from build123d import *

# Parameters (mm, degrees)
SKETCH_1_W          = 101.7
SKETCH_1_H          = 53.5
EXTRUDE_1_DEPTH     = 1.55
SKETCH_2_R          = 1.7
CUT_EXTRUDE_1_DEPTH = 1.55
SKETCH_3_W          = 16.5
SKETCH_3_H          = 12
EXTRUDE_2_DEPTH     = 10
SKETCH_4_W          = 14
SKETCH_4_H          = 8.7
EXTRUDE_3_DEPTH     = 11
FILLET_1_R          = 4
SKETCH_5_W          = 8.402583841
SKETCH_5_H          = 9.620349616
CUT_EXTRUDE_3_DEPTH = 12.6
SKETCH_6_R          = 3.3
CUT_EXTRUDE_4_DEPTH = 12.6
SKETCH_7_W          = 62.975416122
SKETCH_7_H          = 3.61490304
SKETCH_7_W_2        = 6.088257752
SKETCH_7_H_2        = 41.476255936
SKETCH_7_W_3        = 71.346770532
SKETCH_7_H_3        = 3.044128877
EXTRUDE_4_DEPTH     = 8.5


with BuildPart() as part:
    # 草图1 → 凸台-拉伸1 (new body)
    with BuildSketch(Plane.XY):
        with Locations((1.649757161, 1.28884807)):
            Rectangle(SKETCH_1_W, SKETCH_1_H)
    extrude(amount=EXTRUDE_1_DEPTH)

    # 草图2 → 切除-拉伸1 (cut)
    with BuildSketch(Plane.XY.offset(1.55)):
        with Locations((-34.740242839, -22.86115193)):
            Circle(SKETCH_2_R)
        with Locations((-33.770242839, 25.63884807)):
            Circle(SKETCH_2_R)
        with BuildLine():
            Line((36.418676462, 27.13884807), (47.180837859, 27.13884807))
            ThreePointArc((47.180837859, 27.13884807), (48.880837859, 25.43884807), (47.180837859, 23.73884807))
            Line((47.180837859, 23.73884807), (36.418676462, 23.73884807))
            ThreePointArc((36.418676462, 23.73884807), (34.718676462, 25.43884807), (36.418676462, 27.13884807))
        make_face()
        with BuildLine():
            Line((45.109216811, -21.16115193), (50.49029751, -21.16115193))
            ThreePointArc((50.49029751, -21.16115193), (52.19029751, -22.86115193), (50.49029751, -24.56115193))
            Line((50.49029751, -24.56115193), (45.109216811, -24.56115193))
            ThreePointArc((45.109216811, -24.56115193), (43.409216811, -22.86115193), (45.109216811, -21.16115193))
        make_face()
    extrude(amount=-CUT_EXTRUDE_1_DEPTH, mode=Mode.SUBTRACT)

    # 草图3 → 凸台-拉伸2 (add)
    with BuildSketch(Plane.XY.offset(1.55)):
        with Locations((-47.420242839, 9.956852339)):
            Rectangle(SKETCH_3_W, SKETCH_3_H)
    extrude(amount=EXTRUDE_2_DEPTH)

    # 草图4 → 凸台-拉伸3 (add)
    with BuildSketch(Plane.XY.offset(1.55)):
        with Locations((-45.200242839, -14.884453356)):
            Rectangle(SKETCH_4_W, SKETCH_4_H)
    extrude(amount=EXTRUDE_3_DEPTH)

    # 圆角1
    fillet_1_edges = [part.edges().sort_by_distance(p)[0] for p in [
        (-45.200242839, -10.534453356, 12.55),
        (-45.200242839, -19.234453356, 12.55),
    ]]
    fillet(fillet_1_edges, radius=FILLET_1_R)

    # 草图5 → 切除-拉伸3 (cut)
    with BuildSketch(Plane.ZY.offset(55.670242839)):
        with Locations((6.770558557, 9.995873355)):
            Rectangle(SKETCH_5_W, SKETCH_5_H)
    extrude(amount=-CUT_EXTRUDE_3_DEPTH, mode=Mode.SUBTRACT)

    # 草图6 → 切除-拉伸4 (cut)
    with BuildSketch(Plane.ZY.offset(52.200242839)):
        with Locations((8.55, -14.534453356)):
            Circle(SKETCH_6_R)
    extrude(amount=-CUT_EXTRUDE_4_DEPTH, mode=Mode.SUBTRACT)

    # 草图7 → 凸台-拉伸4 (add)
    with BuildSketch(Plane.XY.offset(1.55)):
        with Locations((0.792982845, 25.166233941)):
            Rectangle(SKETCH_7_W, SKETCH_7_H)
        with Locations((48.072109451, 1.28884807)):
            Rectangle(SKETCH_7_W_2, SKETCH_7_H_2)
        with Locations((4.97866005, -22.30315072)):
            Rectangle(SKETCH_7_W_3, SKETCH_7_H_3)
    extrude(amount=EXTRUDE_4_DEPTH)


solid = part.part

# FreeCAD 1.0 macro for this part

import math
import FreeCAD as App
import Part
import Sketcher

V = App.Vector


def edges_at(feature, points):
    """Names of the edges that pass closest to the given points."""
    edges = feature.Shape.Edges
    near = lambda p: min(range(len(edges)), key=lambda i: edges[i].distToShape(Part.Vertex(*p))[0])
    return sorted({f"Edge{near(p) + 1}" for p in points})

doc = App.newDocument("Part")
body = doc.addObject("PartDesign::Body", "Body")

sketch1 = doc.addObject("Sketcher::SketchObject", "Sketch")
body.addObject(sketch1)
sketch1.AttachmentSupport = (doc.XY_Plane, [""])
sketch1.MapMode = "FlatFace"
sketch1.addGeometry([
    Part.LineSegment(V(-49.200243, 28.038848, 0), V(-49.200243, -25.461152, 0)),
    Part.LineSegment(V(-49.200243, -25.461152, 0), V(52.499757, -25.461152, 0)),
    Part.LineSegment(V(52.499757, -25.461152, 0), V(52.499757, 28.038848, 0)),
    Part.LineSegment(V(52.499757, 28.038848, 0), V(-49.200243, 28.038848, 0)),
], False)
sketch1.addConstraint([
    Sketcher.Constraint("Coincident", 0, 2, 1, 1),
    Sketcher.Constraint("Coincident", 1, 2, 2, 1),
    Sketcher.Constraint("Coincident", 2, 2, 3, 1),
    Sketcher.Constraint("Coincident", 3, 2, 0, 1),
    Sketcher.Constraint("Vertical", 0),
    Sketcher.Constraint("Horizontal", 1),
    Sketcher.Constraint("Vertical", 2),
    Sketcher.Constraint("Horizontal", 3),
    Sketcher.Constraint("DistanceX", 1, 1, 1, 2, 101.7),
    Sketcher.Constraint("DistanceY", 0, 2, 0, 1, 53.5),
    Sketcher.Constraint("DistanceY", 0, 2, -1, 1, 25.461152),
    Sketcher.Constraint("DistanceX", 0, 2, -1, 1, 49.200243),
])
pad1 = doc.addObject("PartDesign::Pad", "Pad")
body.addObject(pad1)
pad1.Profile = sketch1
pad1.Length = 1.55

sketch2 = doc.addObject("Sketcher::SketchObject", "Sketch001")
body.addObject(sketch2)
sketch2.AttachmentSupport = (doc.XY_Plane, [""])
sketch2.MapMode = "FlatFace"
sketch2.AttachmentOffset = App.Placement(V(0, 0, 1.55), App.Rotation())
sketch2.addGeometry([
    Part.Circle(V(-34.740243, -22.861152, 0), V(0, 0, 1), 1.7),
    Part.Circle(V(-33.770243, 25.638848, 0), V(0, 0, 1), 1.7),
    Part.LineSegment(V(47.180838, 27.138848, 0), V(36.418676, 27.138848, 0)),
    Part.ArcOfCircle(Part.Circle(V(36.418676, 25.438848, 0), V(0, 0, 1), 1.7), math.radians(90), math.radians(270)),
    Part.LineSegment(V(36.418676, 23.738848, 0), V(47.180838, 23.738848, 0)),
    Part.ArcOfCircle(Part.Circle(V(47.180838, 25.438848, 0), V(0, 0, 1), 1.7), math.radians(-90), math.radians(90)),
    Part.LineSegment(V(50.490298, -21.161152, 0), V(45.109217, -21.161152, 0)),
    Part.ArcOfCircle(Part.Circle(V(45.109217, -22.861152, 0), V(0, 0, 1), 1.7), math.radians(90), math.radians(270)),
    Part.LineSegment(V(45.109217, -24.561152, 0), V(50.490298, -24.561152, 0)),
    Part.ArcOfCircle(Part.Circle(V(50.490298, -22.861152, 0), V(0, 0, 1), 1.7), math.radians(-90), math.radians(90)),
], False)
sketch2.addConstraint([
    Sketcher.Constraint("Tangent", 2, 2, 3, 1),
    Sketcher.Constraint("Tangent", 3, 2, 4, 1),
    Sketcher.Constraint("Tangent", 4, 2, 5, 1),
    Sketcher.Constraint("Tangent", 5, 2, 2, 1),
    Sketcher.Constraint("Tangent", 6, 2, 7, 1),
    Sketcher.Constraint("Tangent", 7, 2, 8, 1),
    Sketcher.Constraint("Tangent", 8, 2, 9, 1),
    Sketcher.Constraint("Tangent", 9, 2, 6, 1),
    Sketcher.Constraint("Horizontal", 2),
    Sketcher.Constraint("Horizontal", 4),
    Sketcher.Constraint("Horizontal", 6),
    Sketcher.Constraint("Horizontal", 8),
    Sketcher.Constraint("Equal", 0, 1),
    Sketcher.Constraint("Equal", 1, 3),
    Sketcher.Constraint("Equal", 5, 7),
    Sketcher.Constraint("Horizontal", 0, 3, 7, 3),
    Sketcher.Constraint("Diameter", 0, 3.4),
    Sketcher.Constraint("DistanceY", 7, 3, 2, 2, 50.0),
    Sketcher.Constraint("DistanceY", 0, 3, 1, 3, 48.5),
    Sketcher.Constraint("DistanceX", 0, 3, 1, 3, 0.97),
    Sketcher.Constraint("DistanceX", 2, 2, 2, 1, 10.762161),
    Sketcher.Constraint("DistanceX", 6, 2, 6, 1, 5.381081),
    Sketcher.Constraint("DistanceY", 0, 3, -1, 1, 22.861152),
    Sketcher.Constraint("DistanceX", 1, 3, 3, 3, 70.188919),
    Sketcher.Constraint("DistanceX", 7, 3, 5, 3, 2.071621),
    Sketcher.Constraint("DistanceX", 0, 3, -1, 1, 34.740243),
])
pocket1 = doc.addObject("PartDesign::Pocket", "Pocket")
body.addObject(pocket1)
pocket1.Profile = sketch2
pocket1.Length = 1.55

sketch3 = doc.addObject("Sketcher::SketchObject", "Sketch002")
body.addObject(sketch3)
sketch3.AttachmentSupport = (doc.XY_Plane, [""])
sketch3.MapMode = "FlatFace"
sketch3.AttachmentOffset = App.Placement(V(0, 0, 1.55), App.Rotation())
sketch3.addGeometry([
    Part.LineSegment(V(-55.670243, 15.956852, 0), V(-55.670243, 3.956852, 0)),
    Part.LineSegment(V(-55.670243, 3.956852, 0), V(-39.170243, 3.956852, 0)),
    Part.LineSegment(V(-39.170243, 3.956852, 0), V(-39.170243, 15.956852, 0)),
    Part.LineSegment(V(-39.170243, 15.956852, 0), V(-55.670243, 15.956852, 0)),
], False)
sketch3.addConstraint([
    Sketcher.Constraint("Coincident", 0, 2, 1, 1),
    Sketcher.Constraint("Coincident", 1, 2, 2, 1),
    Sketcher.Constraint("Coincident", 2, 2, 3, 1),
    Sketcher.Constraint("Coincident", 3, 2, 0, 1),
    Sketcher.Constraint("Vertical", 0),
    Sketcher.Constraint("Horizontal", 1),
    Sketcher.Constraint("Vertical", 2),
    Sketcher.Constraint("Horizontal", 3),
    Sketcher.Constraint("DistanceY", 0, 2, 0, 1, 12.0),
    Sketcher.Constraint("DistanceX", 1, 1, 1, 2, 16.5),
    Sketcher.Constraint("DistanceX", 0, 2, -1, 1, 55.670243),
    Sketcher.Constraint("DistanceY", -1, 1, 0, 2, 3.956852),
])
pad2 = doc.addObject("PartDesign::Pad", "Pad001")
body.addObject(pad2)
pad2.Profile = sketch3
pad2.Length = 10

sketch4 = doc.addObject("Sketcher::SketchObject", "Sketch003")
body.addObject(sketch4)
sketch4.AttachmentSupport = (doc.XY_Plane, [""])
sketch4.MapMode = "FlatFace"
sketch4.AttachmentOffset = App.Placement(V(0, 0, 1.55), App.Rotation())
sketch4.addGeometry([
    Part.LineSegment(V(-52.200243, -10.534453, 0), V(-52.200243, -19.234453, 0)),
    Part.LineSegment(V(-52.200243, -19.234453, 0), V(-38.200243, -19.234453, 0)),
    Part.LineSegment(V(-38.200243, -19.234453, 0), V(-38.200243, -10.534453, 0)),
    Part.LineSegment(V(-38.200243, -10.534453, 0), V(-52.200243, -10.534453, 0)),
], False)
sketch4.addConstraint([
    Sketcher.Constraint("Coincident", 0, 2, 1, 1),
    Sketcher.Constraint("Coincident", 1, 2, 2, 1),
    Sketcher.Constraint("Coincident", 2, 2, 3, 1),
    Sketcher.Constraint("Coincident", 3, 2, 0, 1),
    Sketcher.Constraint("Vertical", 0),
    Sketcher.Constraint("Horizontal", 1),
    Sketcher.Constraint("Vertical", 2),
    Sketcher.Constraint("Horizontal", 3),
    Sketcher.Constraint("DistanceX", 1, 1, 1, 2, 14.0),
    Sketcher.Constraint("DistanceY", 0, 2, 0, 1, 8.7),
    Sketcher.Constraint("DistanceX", 0, 2, -1, 1, 52.200243),
    Sketcher.Constraint("DistanceY", 0, 2, -1, 1, 19.234453),
])
pad3 = doc.addObject("PartDesign::Pad", "Pad002")
body.addObject(pad3)
pad3.Profile = sketch4
pad3.Length = 11
doc.recompute()

fillet = doc.addObject("PartDesign::Fillet", "Fillet")
body.addObject(fillet)
fillet.Base = (pad3, edges_at(pad3, [(-45.2, -10.534, 12.55), (-45.2, -19.234, 12.55)]))
fillet.Radius = 4

sketch5 = doc.addObject("Sketcher::SketchObject", "Sketch004")
body.addObject(sketch5)
sketch5.AttachmentSupport = (doc.YZ_Plane, [""])
sketch5.MapMode = "FlatFace"
sketch5.AttachmentOffset = App.Placement(V(0, 0, -55.670243), App.Rotation())
sketch5.addGeometry([
    Part.LineSegment(V(14.806048, 2.569267, 0), V(5.185699, 2.569267, 0)),
    Part.LineSegment(V(5.185699, 2.569267, 0), V(5.185699, 10.97185, 0)),
    Part.LineSegment(V(5.185699, 10.97185, 0), V(14.806048, 10.97185, 0)),
    Part.LineSegment(V(14.806048, 10.97185, 0), V(14.806048, 2.569267, 0)),
], False)
sketch5.addConstraint([
    Sketcher.Constraint("Coincident", 0, 2, 1, 1),
    Sketcher.Constraint("Coincident", 1, 2, 2, 1),
    Sketcher.Constraint("Coincident", 2, 2, 3, 1),
    Sketcher.Constraint("Coincident", 3, 2, 0, 1),
    Sketcher.Constraint("Horizontal", 0),
    Sketcher.Constraint("Vertical", 1),
    Sketcher.Constraint("Horizontal", 2),
    Sketcher.Constraint("Vertical", 3),
    Sketcher.Constraint("DistanceX", 0, 2, 0, 1, 9.62035),
    Sketcher.Constraint("DistanceX", -1, 1, 0, 2, 5.185699),
    Sketcher.Constraint("DistanceY", 1, 1, 1, 2, 8.402584),
    Sketcher.Constraint("DistanceY", -1, 1, 1, 2, 10.97185),
])
pocket2 = doc.addObject("PartDesign::Pocket", "Pocket001")
body.addObject(pocket2)
pocket2.Profile = sketch5
pocket2.Length = 12.6
pocket2.Reversed = True

sketch6 = doc.addObject("Sketcher::SketchObject", "Sketch005")
body.addObject(sketch6)
sketch6.AttachmentSupport = (doc.YZ_Plane, [""])
sketch6.MapMode = "FlatFace"
sketch6.AttachmentOffset = App.Placement(V(0, 0, -52.200243), App.Rotation())
sketch6.addGeometry(Part.Circle(V(-14.534453, 8.55, 0), V(0, 0, 1), 3.3), False)
sketch6.addConstraint([
    Sketcher.Constraint("Diameter", 0, 6.6),
    Sketcher.Constraint("DistanceY", -1, 1, 0, 3, 8.55),
    Sketcher.Constraint("DistanceX", 0, 3, -1, 1, 14.534453),
])
pocket3 = doc.addObject("PartDesign::Pocket", "Pocket002")
body.addObject(pocket3)
pocket3.Profile = sketch6
pocket3.Length = 12.6
pocket3.Reversed = True

sketch7 = doc.addObject("Sketcher::SketchObject", "Sketch006")
body.addObject(sketch7)
sketch7.AttachmentSupport = (doc.XY_Plane, [""])
sketch7.MapMode = "FlatFace"
sketch7.AttachmentOffset = App.Placement(V(0, 0, 1.55), App.Rotation())
sketch7.addGeometry([
    Part.LineSegment(V(-30.694725, 26.973685, 0), V(-30.694725, 23.358782, 0)),
    Part.LineSegment(V(-30.694725, 23.358782, 0), V(32.280691, 23.358782, 0)),
    Part.LineSegment(V(32.280691, 23.358782, 0), V(32.280691, 26.973685, 0)),
    Part.LineSegment(V(32.280691, 26.973685, 0), V(-30.694725, 26.973685, 0)),
    Part.LineSegment(V(45.027981, 22.026976, 0), V(45.027981, -19.44928, 0)),
    Part.LineSegment(V(45.027981, -19.44928, 0), V(51.116238, -19.44928, 0)),
    Part.LineSegment(V(51.116238, -19.44928, 0), V(51.116238, 22.026976, 0)),
    Part.LineSegment(V(51.116238, 22.026976, 0), V(45.027981, 22.026976, 0)),
    Part.LineSegment(V(-30.694725, -20.781086, 0), V(-30.694725, -23.825215, 0)),
    Part.LineSegment(V(-30.694725, -23.825215, 0), V(40.652045, -23.825215, 0)),
    Part.LineSegment(V(40.652045, -23.825215, 0), V(40.652045, -20.781086, 0)),
    Part.LineSegment(V(40.652045, -20.781086, 0), V(-30.694725, -20.781086, 0)),
], False)
sketch7.addConstraint([
    Sketcher.Constraint("Coincident", 0, 2, 1, 1),
    Sketcher.Constraint("Coincident", 1, 2, 2, 1),
    Sketcher.Constraint("Coincident", 2, 2, 3, 1),
    Sketcher.Constraint("Coincident", 3, 2, 0, 1),
    Sketcher.Constraint("Coincident", 4, 2, 5, 1),
    Sketcher.Constraint("Coincident", 5, 2, 6, 1),
    Sketcher.Constraint("Coincident", 6, 2, 7, 1),
    Sketcher.Constraint("Coincident", 7, 2, 4, 1),
    Sketcher.Constraint("Coincident", 8, 2, 9, 1),
    Sketcher.Constraint("Coincident", 9, 2, 10, 1),
    Sketcher.Constraint("Coincident", 10, 2, 11, 1),
    Sketcher.Constraint("Coincident", 11, 2, 8, 1),
    Sketcher.Constraint("Vertical", 0),
    Sketcher.Constraint("Horizontal", 1),
    Sketcher.Constraint("Vertical", 2),
    Sketcher.Constraint("Horizontal", 3),
    Sketcher.Constraint("Vertical", 4),
    Sketcher.Constraint("Horizontal", 5),
    Sketcher.Constraint("Vertical", 6),
    Sketcher.Constraint("Horizontal", 7),
    Sketcher.Constraint("Vertical", 8),
    Sketcher.Constraint("Horizontal", 9),
    Sketcher.Constraint("Vertical", 10),
    Sketcher.Constraint("Horizontal", 11),
    Sketcher.Constraint("Vertical", 3, 2, 8, 2),
    Sketcher.Constraint("DistanceX", 9, 1, 9, 2, 71.346771),
    Sketcher.Constraint("DistanceY", 8, 2, 8, 1, 3.044129),
    Sketcher.Constraint("DistanceY", 8, 2, 3, 2, 50.798901),
    Sketcher.Constraint("DistanceX", 1, 1, 1, 2, 62.975416),
    Sketcher.Constraint("DistanceX", 5, 1, 5, 2, 6.088258),
    Sketcher.Constraint("DistanceY", 0, 2, 0, 1, 3.614903),
    Sketcher.Constraint("DistanceY", 4, 2, 4, 1, 41.476256),
    Sketcher.Constraint("DistanceX", -1, 1, 1, 2, 32.280691),
    Sketcher.Constraint("DistanceX", -1, 1, 4, 2, 45.027981),
    Sketcher.Constraint("DistanceY", 4, 2, -1, 1, 19.44928),
    Sketcher.Constraint("DistanceY", 6, 2, 2, 2, 4.946709),
])
pad4 = doc.addObject("PartDesign::Pad", "Pad003")
body.addObject(pad4)
pad4.Profile = sketch7
pad4.Length = 8.5

doc.recompute()
